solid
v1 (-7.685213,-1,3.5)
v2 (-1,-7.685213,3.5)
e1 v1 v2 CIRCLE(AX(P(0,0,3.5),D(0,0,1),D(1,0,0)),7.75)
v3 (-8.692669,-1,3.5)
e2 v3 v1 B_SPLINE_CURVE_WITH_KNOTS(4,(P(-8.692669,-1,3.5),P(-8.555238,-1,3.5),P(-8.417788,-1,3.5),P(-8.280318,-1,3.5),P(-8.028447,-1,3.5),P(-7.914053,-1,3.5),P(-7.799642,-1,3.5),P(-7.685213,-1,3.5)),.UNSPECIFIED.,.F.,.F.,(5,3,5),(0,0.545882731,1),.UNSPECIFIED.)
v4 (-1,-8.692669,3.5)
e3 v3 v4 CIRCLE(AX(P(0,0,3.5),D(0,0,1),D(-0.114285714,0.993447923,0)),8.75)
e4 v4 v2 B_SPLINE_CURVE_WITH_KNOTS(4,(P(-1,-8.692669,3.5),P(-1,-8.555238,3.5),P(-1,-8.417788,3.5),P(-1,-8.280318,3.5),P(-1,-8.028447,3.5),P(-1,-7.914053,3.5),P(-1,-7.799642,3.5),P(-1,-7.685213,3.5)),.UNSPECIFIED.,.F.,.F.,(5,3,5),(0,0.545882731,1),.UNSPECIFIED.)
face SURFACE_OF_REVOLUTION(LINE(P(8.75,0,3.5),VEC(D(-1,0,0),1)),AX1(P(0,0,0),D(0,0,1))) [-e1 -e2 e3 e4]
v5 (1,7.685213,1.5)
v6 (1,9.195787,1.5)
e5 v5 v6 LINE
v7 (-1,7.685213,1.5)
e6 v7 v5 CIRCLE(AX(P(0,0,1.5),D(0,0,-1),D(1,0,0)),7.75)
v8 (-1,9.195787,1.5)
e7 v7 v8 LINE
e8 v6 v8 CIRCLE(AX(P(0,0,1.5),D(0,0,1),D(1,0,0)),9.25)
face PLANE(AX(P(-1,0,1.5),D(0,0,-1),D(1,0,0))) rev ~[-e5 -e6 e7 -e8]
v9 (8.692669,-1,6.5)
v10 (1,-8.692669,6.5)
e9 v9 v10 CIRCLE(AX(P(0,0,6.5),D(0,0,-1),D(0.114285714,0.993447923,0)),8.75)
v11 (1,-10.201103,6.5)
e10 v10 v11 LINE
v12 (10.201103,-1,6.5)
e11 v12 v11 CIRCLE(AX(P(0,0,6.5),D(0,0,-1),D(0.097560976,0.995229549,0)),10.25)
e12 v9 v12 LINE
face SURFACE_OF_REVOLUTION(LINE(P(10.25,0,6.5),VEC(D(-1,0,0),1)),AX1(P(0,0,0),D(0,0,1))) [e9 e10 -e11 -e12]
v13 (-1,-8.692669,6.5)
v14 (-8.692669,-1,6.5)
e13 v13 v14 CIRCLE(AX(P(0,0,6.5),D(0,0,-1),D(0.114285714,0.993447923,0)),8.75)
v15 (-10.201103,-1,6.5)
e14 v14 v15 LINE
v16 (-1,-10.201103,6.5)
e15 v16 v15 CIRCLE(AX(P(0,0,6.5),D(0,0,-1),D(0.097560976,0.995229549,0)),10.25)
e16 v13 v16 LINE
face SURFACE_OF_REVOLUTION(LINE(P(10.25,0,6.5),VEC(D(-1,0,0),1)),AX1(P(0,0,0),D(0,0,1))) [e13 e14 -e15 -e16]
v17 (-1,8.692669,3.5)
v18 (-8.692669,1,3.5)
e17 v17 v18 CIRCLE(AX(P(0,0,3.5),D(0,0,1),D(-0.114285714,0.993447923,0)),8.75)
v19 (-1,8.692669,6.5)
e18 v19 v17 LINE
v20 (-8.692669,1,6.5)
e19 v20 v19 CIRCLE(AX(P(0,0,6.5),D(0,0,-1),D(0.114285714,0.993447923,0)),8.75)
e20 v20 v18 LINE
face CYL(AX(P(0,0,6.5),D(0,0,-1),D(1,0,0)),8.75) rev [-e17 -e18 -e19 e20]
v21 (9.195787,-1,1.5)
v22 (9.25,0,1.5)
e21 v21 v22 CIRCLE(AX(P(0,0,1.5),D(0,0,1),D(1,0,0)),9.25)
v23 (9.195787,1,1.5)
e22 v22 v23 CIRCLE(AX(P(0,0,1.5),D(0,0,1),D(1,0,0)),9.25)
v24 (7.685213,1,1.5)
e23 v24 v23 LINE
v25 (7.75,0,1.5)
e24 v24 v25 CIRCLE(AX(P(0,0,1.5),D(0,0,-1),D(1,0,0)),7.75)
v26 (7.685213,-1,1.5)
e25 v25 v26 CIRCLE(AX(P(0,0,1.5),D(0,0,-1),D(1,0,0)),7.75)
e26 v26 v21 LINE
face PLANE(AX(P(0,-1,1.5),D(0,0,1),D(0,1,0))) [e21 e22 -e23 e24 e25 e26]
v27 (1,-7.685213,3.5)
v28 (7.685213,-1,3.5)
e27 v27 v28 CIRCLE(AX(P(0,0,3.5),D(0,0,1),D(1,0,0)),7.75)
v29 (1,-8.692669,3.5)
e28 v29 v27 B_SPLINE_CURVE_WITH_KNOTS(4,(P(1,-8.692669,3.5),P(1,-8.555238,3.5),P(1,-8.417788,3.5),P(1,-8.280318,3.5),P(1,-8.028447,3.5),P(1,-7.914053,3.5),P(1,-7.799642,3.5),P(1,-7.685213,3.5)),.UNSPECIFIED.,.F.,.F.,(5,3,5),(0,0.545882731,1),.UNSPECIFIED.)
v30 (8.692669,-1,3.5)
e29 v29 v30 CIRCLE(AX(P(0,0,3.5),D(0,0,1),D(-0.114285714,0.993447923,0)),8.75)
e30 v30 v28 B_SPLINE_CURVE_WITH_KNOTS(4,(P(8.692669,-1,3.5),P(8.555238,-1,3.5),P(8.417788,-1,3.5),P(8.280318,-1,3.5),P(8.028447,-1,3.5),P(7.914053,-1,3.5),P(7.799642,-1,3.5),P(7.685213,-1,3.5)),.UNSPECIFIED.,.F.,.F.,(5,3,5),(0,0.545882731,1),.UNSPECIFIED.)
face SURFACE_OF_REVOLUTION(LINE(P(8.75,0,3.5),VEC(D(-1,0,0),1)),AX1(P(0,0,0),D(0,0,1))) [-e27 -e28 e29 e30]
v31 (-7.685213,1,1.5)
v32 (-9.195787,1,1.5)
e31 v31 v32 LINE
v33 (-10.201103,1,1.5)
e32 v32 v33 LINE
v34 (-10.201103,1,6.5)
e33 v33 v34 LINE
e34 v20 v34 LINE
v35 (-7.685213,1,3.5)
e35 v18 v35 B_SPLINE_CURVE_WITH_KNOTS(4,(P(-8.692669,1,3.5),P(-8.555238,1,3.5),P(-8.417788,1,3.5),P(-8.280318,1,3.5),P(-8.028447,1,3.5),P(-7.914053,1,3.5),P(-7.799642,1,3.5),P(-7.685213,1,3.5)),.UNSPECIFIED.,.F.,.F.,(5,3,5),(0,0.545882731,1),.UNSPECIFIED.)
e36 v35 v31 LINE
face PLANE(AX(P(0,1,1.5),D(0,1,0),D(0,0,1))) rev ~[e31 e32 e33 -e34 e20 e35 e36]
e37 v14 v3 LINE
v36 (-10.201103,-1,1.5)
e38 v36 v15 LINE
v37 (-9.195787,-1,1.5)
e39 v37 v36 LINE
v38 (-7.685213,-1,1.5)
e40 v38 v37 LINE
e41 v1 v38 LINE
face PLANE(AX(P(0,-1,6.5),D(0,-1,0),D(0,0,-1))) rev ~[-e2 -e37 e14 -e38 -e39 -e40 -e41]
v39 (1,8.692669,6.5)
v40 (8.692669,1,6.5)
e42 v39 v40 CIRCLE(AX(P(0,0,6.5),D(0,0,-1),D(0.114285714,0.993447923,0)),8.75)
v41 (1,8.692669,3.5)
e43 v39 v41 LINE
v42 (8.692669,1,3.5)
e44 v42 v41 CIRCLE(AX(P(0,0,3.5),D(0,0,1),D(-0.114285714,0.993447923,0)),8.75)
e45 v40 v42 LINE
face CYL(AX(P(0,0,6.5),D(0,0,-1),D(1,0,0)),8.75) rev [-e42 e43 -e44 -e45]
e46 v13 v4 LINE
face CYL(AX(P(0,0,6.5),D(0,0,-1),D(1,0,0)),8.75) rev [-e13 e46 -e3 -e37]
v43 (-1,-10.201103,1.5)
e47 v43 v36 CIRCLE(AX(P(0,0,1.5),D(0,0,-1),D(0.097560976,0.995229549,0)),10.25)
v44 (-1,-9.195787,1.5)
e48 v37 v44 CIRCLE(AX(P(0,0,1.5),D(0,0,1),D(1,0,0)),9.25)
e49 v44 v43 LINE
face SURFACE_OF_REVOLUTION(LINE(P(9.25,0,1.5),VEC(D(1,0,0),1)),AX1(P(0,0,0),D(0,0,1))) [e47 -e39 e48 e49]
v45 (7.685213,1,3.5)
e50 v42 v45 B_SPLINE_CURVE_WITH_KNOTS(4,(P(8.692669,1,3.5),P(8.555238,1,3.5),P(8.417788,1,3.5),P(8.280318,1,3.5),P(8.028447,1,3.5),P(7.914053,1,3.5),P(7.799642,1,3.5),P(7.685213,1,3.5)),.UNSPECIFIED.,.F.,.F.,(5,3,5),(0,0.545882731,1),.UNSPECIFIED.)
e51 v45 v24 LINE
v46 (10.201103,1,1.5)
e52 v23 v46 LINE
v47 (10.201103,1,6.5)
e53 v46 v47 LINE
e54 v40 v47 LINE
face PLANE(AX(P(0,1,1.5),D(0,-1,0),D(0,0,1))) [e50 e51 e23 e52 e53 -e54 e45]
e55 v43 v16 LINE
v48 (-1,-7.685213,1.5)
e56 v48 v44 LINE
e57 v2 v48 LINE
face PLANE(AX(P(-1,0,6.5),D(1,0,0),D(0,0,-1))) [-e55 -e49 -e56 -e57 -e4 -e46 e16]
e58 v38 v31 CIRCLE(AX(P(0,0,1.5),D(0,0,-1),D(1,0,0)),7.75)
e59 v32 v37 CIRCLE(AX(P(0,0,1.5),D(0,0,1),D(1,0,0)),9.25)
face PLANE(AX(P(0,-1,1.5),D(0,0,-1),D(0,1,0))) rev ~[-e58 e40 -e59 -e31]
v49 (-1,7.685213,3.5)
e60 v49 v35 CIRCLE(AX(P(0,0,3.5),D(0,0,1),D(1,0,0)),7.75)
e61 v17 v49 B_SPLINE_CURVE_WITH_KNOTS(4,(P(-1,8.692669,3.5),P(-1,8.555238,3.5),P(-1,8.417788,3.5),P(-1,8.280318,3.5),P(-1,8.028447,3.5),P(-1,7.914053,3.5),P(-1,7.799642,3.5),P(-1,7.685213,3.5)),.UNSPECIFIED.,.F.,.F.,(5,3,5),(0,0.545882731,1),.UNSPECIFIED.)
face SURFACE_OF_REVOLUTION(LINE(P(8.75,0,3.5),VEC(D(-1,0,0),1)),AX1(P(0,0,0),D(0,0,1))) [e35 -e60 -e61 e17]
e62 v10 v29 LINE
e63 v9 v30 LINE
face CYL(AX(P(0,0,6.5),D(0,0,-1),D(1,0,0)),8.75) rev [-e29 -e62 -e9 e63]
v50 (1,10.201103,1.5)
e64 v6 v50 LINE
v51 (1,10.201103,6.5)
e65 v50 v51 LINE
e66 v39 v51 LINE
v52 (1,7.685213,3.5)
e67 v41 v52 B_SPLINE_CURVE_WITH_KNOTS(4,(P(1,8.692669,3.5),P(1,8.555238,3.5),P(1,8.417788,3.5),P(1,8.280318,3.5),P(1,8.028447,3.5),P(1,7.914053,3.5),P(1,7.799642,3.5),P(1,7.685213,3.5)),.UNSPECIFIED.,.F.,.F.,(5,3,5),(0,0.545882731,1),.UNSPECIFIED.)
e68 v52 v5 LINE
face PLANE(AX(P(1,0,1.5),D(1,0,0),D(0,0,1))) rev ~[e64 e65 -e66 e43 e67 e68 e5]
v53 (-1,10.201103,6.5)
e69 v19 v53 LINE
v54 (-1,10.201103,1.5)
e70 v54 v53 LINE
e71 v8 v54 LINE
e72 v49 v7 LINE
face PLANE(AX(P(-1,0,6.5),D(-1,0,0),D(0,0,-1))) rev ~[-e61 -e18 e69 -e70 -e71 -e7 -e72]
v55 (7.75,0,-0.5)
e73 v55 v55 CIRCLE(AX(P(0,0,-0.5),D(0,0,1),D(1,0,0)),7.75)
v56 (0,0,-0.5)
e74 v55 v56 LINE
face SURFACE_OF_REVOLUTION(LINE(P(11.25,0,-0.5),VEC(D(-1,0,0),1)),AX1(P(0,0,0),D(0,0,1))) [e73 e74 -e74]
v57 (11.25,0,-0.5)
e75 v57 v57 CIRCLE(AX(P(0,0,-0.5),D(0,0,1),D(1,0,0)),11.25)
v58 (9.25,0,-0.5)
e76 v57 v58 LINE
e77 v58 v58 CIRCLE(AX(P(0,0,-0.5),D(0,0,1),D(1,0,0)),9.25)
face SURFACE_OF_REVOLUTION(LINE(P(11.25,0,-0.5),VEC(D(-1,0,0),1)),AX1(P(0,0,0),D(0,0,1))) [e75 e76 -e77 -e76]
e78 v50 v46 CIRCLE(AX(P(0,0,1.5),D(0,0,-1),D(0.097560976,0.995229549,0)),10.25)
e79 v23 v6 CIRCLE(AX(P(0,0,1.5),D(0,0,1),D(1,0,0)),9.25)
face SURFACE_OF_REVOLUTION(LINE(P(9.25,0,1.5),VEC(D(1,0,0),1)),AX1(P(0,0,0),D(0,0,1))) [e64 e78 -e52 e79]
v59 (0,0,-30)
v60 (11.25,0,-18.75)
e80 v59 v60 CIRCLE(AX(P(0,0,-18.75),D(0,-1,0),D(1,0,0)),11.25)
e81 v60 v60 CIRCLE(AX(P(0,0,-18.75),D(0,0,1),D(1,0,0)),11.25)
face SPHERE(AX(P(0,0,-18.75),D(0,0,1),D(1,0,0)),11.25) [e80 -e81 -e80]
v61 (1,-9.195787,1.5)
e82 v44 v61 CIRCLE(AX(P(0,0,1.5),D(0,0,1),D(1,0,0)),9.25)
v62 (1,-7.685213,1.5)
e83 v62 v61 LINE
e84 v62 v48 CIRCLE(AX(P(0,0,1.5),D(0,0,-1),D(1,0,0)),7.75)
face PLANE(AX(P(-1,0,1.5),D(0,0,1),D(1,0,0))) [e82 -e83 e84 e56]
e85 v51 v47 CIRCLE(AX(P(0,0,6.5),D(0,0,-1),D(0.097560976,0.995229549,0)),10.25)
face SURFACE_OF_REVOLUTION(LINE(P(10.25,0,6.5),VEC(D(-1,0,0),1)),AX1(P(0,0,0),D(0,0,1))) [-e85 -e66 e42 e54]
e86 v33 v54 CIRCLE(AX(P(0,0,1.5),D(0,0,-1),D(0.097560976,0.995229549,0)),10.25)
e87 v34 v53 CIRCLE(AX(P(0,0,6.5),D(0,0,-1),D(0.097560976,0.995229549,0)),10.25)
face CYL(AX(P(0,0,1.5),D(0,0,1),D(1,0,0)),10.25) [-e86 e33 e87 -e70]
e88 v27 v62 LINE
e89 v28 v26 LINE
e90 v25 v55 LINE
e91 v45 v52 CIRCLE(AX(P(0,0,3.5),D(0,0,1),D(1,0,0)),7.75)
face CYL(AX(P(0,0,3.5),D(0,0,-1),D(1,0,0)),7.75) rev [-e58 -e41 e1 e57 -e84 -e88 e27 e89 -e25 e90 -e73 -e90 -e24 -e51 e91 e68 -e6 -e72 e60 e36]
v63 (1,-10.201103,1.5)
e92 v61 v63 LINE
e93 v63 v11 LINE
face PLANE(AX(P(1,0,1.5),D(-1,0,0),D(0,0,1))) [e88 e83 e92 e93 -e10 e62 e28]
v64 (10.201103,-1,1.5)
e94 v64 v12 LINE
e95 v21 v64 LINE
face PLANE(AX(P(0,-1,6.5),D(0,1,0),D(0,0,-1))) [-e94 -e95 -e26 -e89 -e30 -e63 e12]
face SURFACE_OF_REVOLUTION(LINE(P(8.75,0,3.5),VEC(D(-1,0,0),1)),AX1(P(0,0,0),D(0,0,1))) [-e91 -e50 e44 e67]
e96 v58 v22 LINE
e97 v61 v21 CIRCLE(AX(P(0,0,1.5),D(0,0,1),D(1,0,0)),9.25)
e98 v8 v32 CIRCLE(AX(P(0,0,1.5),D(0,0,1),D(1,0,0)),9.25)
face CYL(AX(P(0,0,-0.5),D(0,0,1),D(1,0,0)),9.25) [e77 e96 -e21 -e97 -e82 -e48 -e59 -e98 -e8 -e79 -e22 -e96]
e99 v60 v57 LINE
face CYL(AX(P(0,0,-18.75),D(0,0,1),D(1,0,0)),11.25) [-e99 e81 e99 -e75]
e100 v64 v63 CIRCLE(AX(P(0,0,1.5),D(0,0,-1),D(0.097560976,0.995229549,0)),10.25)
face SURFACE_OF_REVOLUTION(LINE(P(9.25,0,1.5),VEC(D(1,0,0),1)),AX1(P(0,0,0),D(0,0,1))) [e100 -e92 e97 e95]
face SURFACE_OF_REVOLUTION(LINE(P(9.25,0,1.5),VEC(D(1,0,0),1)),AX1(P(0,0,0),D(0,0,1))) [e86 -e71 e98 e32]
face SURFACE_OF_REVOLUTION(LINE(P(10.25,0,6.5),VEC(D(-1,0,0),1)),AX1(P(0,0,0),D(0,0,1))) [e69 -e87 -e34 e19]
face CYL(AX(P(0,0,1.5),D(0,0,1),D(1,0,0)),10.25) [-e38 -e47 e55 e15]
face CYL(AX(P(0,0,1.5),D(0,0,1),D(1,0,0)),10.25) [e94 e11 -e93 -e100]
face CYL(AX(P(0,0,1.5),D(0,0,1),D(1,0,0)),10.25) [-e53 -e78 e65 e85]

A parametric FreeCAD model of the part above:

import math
import FreeCAD as App
import Part
import Sketcher
Q = App.Units.Quantity

doc = App.newDocument("Part")
body = doc.addObject("PartDesign::Body", "Body")

# Sketch on XZ plane
sketch1 = body.newObject("Sketcher::SketchObject", "Sketch")
sketch1.AttachmentSupport = (doc.getObject("XZ_Plane"), [""])
sketch1.MapMode = "FlatFace"
sketch1.addGeometry(Part.LineSegment(App.Vector(0, -0.5, 0), App.Vector(0, -30, 0)), False)
sketch1.addGeometry(Part.ArcOfCircle(Part.Circle(App.Vector(0, -18.8, 0), App.Vector(0, 0, 1), 11.2), math.radians(-90), math.radians(0)), False)
sketch1.addGeometry(Part.LineSegment(App.Vector(11.2, -18.8, 0), App.Vector(11.2, -0.5, 0)), False)
sketch1.addGeometry(Part.LineSegment(App.Vector(11.2, -0.5, 0), App.Vector(9.2, -0.5, 0)), False)
sketch1.addGeometry(Part.LineSegment(App.Vector(9.2, -0.5, 0), App.Vector(9.2, 1.5, 0)), False)
sketch1.addGeometry(Part.LineSegment(App.Vector(9.2, 1.5, 0), App.Vector(10.2, 1.5, 0)), False)
sketch1.addGeometry(Part.LineSegment(App.Vector(10.2, 1.5, 0), App.Vector(10.2, 6.5, 0)), False)
sketch1.addGeometry(Part.LineSegment(App.Vector(10.2, 6.5, 0), App.Vector(8.8, 6.5, 0)), False)
sketch1.addGeometry(Part.LineSegment(App.Vector(8.8, 6.5, 0), App.Vector(8.8, 3.5, 0)), False)
sketch1.addGeometry(Part.LineSegment(App.Vector(8.8, 3.5, 0), App.Vector(7.8, 3.5, 0)), False)
sketch1.addGeometry(Part.LineSegment(App.Vector(7.8, 3.5, 0), App.Vector(7.8, -0.5, 0)), False)
sketch1.addGeometry(Part.LineSegment(App.Vector(7.8, -0.5, 0), App.Vector(0, -0.5, 0)), False)
sketch1.addConstraint(Sketcher.Constraint("Coincident", 0, 2, 1, 1))
sketch1.addConstraint(Sketcher.Constraint("Tangent", 1, 2, 2, 1))
sketch1.addConstraint(Sketcher.Constraint("Coincident", 2, 2, 3, 1))
sketch1.addConstraint(Sketcher.Constraint("Coincident", 3, 2, 4, 1))
sketch1.addConstraint(Sketcher.Constraint("Coincident", 4, 2, 5, 1))
sketch1.addConstraint(Sketcher.Constraint("Coincident", 5, 2, 6, 1))
sketch1.addConstraint(Sketcher.Constraint("Coincident", 6, 2, 7, 1))
sketch1.addConstraint(Sketcher.Constraint("Coincident", 7, 2, 8, 1))
sketch1.addConstraint(Sketcher.Constraint("Coincident", 8, 2, 9, 1))
sketch1.addConstraint(Sketcher.Constraint("Coincident", 9, 2, 10, 1))
sketch1.addConstraint(Sketcher.Constraint("Coincident", 10, 2, 11, 1))
sketch1.addConstraint(Sketcher.Constraint("Coincident", 11, 2, 0, 1))
sketch1.addConstraint(Sketcher.Constraint("Vertical", 0))
sketch1.addConstraint(Sketcher.Constraint("Vertical", 2))
sketch1.addConstraint(Sketcher.Constraint("Horizontal", 3))
sketch1.addConstraint(Sketcher.Constraint("Vertical", 4))
sketch1.addConstraint(Sketcher.Constraint("Horizontal", 5))
sketch1.addConstraint(Sketcher.Constraint("Vertical", 6))
sketch1.addConstraint(Sketcher.Constraint("Horizontal", 7))
sketch1.addConstraint(Sketcher.Constraint("Vertical", 8))
sketch1.addConstraint(Sketcher.Constraint("Horizontal", 9))
sketch1.addConstraint(Sketcher.Constraint("Vertical", 10))
sketch1.addConstraint(Sketcher.Constraint("Horizontal", 11))
sketch1.addConstraint(Sketcher.Constraint("PointOnObject", 1, 3, -2))
sketch1.addConstraint(Sketcher.Constraint("PointOnObject", 0, 2, -2))
sketch1.addConstraint(Sketcher.Constraint("Horizontal", 3, 2, 10, 2))
sketch1.addConstraint(Sketcher.Constraint("Equal", 5, 9))
sketch1.addConstraint(Sketcher.Constraint("Equal", 3, 4))
sketch1.addConstraint(Sketcher.Constraint("DistanceX", 3, 2, 3, 1, Q("2 mm")))
sketch1.addConstraint(Sketcher.Constraint("DistanceX", 5, 1, 5, 2, Q("1 mm")))
sketch1.addConstraint(Sketcher.Constraint("DistanceY", 6, 1, 6, 2, Q("5 mm")))
sketch1.addConstraint(Sketcher.Constraint("DistanceY", 8, 2, 8, 1, Q("3 mm")))
sketch1.addConstraint(Sketcher.Constraint("Radius", 1, Q("11.25 mm")))
sketch1.addConstraint(Sketcher.Constraint("DistanceX", 7, 2, 7, 1, Q("1.5 mm")))
sketch1.addConstraint(Sketcher.Constraint("DistanceY", 0, 2, 0, 1, Q("29.5 mm")))
sketch1.addConstraint(Sketcher.Constraint("DistanceY", 0, 2, -1, 1, Q("30 mm")))

# Sketch on XY plane
sketch2 = body.newObject("Sketcher::SketchObject", "Sketch001")
sketch2.AttachmentSupport = (doc.getObject("XY_Plane"), [""])
sketch2.MapMode = "FlatFace"
sketch2.addGeometry(Part.Circle(App.Vector(0, 0, 0), App.Vector(0, 0, 1), 11), False)
sketch2.addConstraint(Sketcher.Constraint("Coincident", 0, 3, -1, 1))
sketch2.addConstraint(Sketcher.Constraint("Diameter", 0, Q("22.5 mm")))
doc.recompute()

additivepipe = body.newObject("PartDesign::AdditivePipe", "AdditivePipe")
additivepipe.Profile = sketch1
additivepipe.Spine = (sketch2, ["Edge1"])

# Sketch on XZ plane
sketch3 = body.newObject("Sketcher::SketchObject", "Sketch002")
sketch3.AttachmentSupport = (doc.getObject("XZ_Plane"), [""])
sketch3.MapMode = "FlatFace"
sketch3.addGeometry(Part.LineSegment(App.Vector(-1, 1.5, 0), App.Vector(1, 1.5, 0)), False)
sketch3.addGeometry(Part.LineSegment(App.Vector(1, 1.5, 0), App.Vector(1, 6.5, 0)), False)
sketch3.addGeometry(Part.LineSegment(App.Vector(1, 6.5, 0), App.Vector(-1, 6.5, 0)), False)
sketch3.addGeometry(Part.LineSegment(App.Vector(-1, 6.5, 0), App.Vector(-1, 1.5, 0)), False)
sketch3.addConstraint(Sketcher.Constraint("Coincident", 0, 2, 1, 1))
sketch3.addConstraint(Sketcher.Constraint("Coincident", 1, 2, 2, 1))
sketch3.addConstraint(Sketcher.Constraint("Coincident", 2, 2, 3, 1))
sketch3.addConstraint(Sketcher.Constraint("Coincident", 3, 2, 0, 1))
sketch3.addConstraint(Sketcher.Constraint("Horizontal", 0))
sketch3.addConstraint(Sketcher.Constraint("Vertical", 1))
sketch3.addConstraint(Sketcher.Constraint("Horizontal", 2))
sketch3.addConstraint(Sketcher.Constraint("Vertical", 3))
sketch3.addConstraint(Sketcher.Constraint("DistanceX", 0, 1, 0, 2, Q("2 mm")))
sketch3.addConstraint(Sketcher.Constraint("DistanceY", 1, 1, 1, 2, Q("5 mm")))
sketch3.addConstraint(Sketcher.Constraint("DistanceX", -1, 1, 0, 2, Q("1 mm")))
sketch3.addConstraint(Sketcher.Constraint("DistanceY", -1, 1, 0, 2, Q("1.5 mm")))
pocket1 = body.newObject("PartDesign::Pocket", "Pocket")
pocket1.Profile = sketch3
pocket1.Type = "ThroughAll"
pocket1.Midplane = True

# Sketch on YZ plane
sketch4 = body.newObject("Sketcher::SketchObject", "Sketch003")
sketch4.AttachmentSupport = (doc.getObject("YZ_Plane"), [""])
sketch4.MapMode = "FlatFace"
sketch4.addGeometry(Part.LineSegment(App.Vector(-1, 1.5, 0), App.Vector(1, 1.5, 0)), False)
sketch4.addGeometry(Part.LineSegment(App.Vector(1, 1.5, 0), App.Vector(1, 6.5, 0)), False)
sketch4.addGeometry(Part.LineSegment(App.Vector(1, 6.5, 0), App.Vector(-1, 6.5, 0)), False)
sketch4.addGeometry(Part.LineSegment(App.Vector(-1, 6.5, 0), App.Vector(-1, 1.5, 0)), False)
sketch4.addConstraint(Sketcher.Constraint("Coincident", 0, 2, 1, 1))
sketch4.addConstraint(Sketcher.Constraint("Coincident", 1, 2, 2, 1))
sketch4.addConstraint(Sketcher.Constraint("Coincident", 2, 2, 3, 1))
sketch4.addConstraint(Sketcher.Constraint("Coincident", 3, 2, 0, 1))
sketch4.addConstraint(Sketcher.Constraint("Horizontal", 0))
sketch4.addConstraint(Sketcher.Constraint("Vertical", 1))
sketch4.addConstraint(Sketcher.Constraint("Horizontal", 2))
sketch4.addConstraint(Sketcher.Constraint("Vertical", 3))
sketch4.addConstraint(Sketcher.Constraint("DistanceX", 0, 1, 0, 2, Q("2 mm")))
sketch4.addConstraint(Sketcher.Constraint("DistanceY", 1, 1, 1, 2, Q("5 mm")))
sketch4.addConstraint(Sketcher.Constraint("DistanceX", -1, 1, 0, 2, Q("1 mm")))
sketch4.addConstraint(Sketcher.Constraint("DistanceY", -1, 1, 0, 2, Q("1.5 mm")))
pocket2 = body.newObject("PartDesign::Pocket", "Pocket001")
pocket2.Profile = sketch4
pocket2.Type = "ThroughAll"
pocket2.Midplane = True

doc.recompute()
